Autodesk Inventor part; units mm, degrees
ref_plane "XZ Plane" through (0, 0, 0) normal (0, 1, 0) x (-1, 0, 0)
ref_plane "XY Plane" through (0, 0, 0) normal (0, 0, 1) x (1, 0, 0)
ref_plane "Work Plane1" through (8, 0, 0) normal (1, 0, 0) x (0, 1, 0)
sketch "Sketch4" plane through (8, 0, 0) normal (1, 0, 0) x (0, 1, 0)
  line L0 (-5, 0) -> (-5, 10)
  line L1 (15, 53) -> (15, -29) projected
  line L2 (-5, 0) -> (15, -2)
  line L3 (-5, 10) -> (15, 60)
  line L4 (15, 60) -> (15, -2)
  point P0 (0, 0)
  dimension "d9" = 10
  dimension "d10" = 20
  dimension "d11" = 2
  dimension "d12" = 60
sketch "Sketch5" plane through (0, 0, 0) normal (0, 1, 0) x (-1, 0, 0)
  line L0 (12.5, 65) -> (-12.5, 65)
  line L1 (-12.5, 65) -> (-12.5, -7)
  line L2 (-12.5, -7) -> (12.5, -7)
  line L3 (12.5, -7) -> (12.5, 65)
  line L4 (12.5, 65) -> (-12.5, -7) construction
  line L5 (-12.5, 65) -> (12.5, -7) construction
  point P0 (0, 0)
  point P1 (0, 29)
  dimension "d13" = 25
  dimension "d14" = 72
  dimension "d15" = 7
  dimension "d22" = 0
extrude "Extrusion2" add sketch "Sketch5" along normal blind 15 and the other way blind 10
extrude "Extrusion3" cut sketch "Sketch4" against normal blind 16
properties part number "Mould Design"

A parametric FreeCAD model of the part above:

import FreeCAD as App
import Part
import Sketcher
from FreeCAD import Vector
Q = App.Units.Quantity


def add_polygon(sketch, points):
    """Adds a closed chain of lines whose ends are joined by coincident constraints."""
    first, n = sketch.GeometryCount, len(points)
    for a, b in zip(points, points[1:] + points[:1]):
        sketch.addGeometry(Part.LineSegment(App.Vector(*a, 0), App.Vector(*b, 0)), False)
    for i in range(n):
        sketch.addConstraint(Sketcher.Constraint("Coincident", first + i, 2, first + (i + 1) % n, 1))

doc = App.newDocument("Part")
body = doc.addObject("PartDesign::Body", "Body")

sketch1 = body.newObject("Sketcher::SketchObject", "Sketch")
sketch1.AttachmentSupport = (doc.getObject("XZ_Plane"), [""])
sketch1.MapMode = "FlatFace"
add_polygon(sketch1, [(-12.5, -7), (-12.5, 65), (12.5, 65), (12.5, -7)])
sketch1.addConstraint([
    Sketcher.Constraint("Vertical", 0),
    Sketcher.Constraint("Horizontal", 1),
    Sketcher.Constraint("Vertical", 2),
    Sketcher.Constraint("Horizontal", 3),
    Sketcher.Constraint("DistanceX", 1, 1, 1, 2, Q("25 mm")),
    Sketcher.Constraint("DistanceY", 0, 1, 0, 2, Q("72 mm")),
    Sketcher.Constraint("DistanceY", 2, 2, -1, 1, Q("7 mm")),
    Sketcher.Constraint("DistanceX", 0, 2, -1, 1, Q("12.5 mm")),
])
pad1 = body.newObject("PartDesign::Pad", "Pad")
pad1.Profile = sketch1
pad1.Type = "TwoLengths"
pad1.Length = 15
pad1.Length2 = 10
pad1.Reversed = True

sketch2 = body.newObject("Sketcher::SketchObject", "Sketch001")
sketch2.AttachmentSupport = (doc.getObject("YZ_Plane"), [""])
sketch2.MapMode = "FlatFace"
sketch2.AttachmentOffset = App.Placement(Vector(0, 0, 8), App.Rotation())
add_polygon(sketch2, [(-5, 10), (-5, 0), (15, -2), (15, 60)])
sketch2.addConstraint([
    Sketcher.Constraint("Vertical", 0),
    Sketcher.Constraint("Vertical", 2),
    Sketcher.Constraint("PointOnObject", 0, 2, -1),
    Sketcher.Constraint("DistanceY", 0, 2, 0, 1, Q("10 mm")),
    Sketcher.Constraint("DistanceY", 1, 2, -1, 1, Q("2 mm")),
    Sketcher.Constraint("DistanceY", -1, 1, 2, 2, Q("60 mm")),
    Sketcher.Constraint("DistanceX", 0, 2, 1, 2, Q("20 mm")),
    Sketcher.Constraint("DistanceX", 0, 2, -1, 1, Q("5 mm")),
])
pocket1 = body.newObject("PartDesign::Pocket", "Pocket")
pocket1.Profile = sketch2
pocket1.Length = 16

doc.recompute()
